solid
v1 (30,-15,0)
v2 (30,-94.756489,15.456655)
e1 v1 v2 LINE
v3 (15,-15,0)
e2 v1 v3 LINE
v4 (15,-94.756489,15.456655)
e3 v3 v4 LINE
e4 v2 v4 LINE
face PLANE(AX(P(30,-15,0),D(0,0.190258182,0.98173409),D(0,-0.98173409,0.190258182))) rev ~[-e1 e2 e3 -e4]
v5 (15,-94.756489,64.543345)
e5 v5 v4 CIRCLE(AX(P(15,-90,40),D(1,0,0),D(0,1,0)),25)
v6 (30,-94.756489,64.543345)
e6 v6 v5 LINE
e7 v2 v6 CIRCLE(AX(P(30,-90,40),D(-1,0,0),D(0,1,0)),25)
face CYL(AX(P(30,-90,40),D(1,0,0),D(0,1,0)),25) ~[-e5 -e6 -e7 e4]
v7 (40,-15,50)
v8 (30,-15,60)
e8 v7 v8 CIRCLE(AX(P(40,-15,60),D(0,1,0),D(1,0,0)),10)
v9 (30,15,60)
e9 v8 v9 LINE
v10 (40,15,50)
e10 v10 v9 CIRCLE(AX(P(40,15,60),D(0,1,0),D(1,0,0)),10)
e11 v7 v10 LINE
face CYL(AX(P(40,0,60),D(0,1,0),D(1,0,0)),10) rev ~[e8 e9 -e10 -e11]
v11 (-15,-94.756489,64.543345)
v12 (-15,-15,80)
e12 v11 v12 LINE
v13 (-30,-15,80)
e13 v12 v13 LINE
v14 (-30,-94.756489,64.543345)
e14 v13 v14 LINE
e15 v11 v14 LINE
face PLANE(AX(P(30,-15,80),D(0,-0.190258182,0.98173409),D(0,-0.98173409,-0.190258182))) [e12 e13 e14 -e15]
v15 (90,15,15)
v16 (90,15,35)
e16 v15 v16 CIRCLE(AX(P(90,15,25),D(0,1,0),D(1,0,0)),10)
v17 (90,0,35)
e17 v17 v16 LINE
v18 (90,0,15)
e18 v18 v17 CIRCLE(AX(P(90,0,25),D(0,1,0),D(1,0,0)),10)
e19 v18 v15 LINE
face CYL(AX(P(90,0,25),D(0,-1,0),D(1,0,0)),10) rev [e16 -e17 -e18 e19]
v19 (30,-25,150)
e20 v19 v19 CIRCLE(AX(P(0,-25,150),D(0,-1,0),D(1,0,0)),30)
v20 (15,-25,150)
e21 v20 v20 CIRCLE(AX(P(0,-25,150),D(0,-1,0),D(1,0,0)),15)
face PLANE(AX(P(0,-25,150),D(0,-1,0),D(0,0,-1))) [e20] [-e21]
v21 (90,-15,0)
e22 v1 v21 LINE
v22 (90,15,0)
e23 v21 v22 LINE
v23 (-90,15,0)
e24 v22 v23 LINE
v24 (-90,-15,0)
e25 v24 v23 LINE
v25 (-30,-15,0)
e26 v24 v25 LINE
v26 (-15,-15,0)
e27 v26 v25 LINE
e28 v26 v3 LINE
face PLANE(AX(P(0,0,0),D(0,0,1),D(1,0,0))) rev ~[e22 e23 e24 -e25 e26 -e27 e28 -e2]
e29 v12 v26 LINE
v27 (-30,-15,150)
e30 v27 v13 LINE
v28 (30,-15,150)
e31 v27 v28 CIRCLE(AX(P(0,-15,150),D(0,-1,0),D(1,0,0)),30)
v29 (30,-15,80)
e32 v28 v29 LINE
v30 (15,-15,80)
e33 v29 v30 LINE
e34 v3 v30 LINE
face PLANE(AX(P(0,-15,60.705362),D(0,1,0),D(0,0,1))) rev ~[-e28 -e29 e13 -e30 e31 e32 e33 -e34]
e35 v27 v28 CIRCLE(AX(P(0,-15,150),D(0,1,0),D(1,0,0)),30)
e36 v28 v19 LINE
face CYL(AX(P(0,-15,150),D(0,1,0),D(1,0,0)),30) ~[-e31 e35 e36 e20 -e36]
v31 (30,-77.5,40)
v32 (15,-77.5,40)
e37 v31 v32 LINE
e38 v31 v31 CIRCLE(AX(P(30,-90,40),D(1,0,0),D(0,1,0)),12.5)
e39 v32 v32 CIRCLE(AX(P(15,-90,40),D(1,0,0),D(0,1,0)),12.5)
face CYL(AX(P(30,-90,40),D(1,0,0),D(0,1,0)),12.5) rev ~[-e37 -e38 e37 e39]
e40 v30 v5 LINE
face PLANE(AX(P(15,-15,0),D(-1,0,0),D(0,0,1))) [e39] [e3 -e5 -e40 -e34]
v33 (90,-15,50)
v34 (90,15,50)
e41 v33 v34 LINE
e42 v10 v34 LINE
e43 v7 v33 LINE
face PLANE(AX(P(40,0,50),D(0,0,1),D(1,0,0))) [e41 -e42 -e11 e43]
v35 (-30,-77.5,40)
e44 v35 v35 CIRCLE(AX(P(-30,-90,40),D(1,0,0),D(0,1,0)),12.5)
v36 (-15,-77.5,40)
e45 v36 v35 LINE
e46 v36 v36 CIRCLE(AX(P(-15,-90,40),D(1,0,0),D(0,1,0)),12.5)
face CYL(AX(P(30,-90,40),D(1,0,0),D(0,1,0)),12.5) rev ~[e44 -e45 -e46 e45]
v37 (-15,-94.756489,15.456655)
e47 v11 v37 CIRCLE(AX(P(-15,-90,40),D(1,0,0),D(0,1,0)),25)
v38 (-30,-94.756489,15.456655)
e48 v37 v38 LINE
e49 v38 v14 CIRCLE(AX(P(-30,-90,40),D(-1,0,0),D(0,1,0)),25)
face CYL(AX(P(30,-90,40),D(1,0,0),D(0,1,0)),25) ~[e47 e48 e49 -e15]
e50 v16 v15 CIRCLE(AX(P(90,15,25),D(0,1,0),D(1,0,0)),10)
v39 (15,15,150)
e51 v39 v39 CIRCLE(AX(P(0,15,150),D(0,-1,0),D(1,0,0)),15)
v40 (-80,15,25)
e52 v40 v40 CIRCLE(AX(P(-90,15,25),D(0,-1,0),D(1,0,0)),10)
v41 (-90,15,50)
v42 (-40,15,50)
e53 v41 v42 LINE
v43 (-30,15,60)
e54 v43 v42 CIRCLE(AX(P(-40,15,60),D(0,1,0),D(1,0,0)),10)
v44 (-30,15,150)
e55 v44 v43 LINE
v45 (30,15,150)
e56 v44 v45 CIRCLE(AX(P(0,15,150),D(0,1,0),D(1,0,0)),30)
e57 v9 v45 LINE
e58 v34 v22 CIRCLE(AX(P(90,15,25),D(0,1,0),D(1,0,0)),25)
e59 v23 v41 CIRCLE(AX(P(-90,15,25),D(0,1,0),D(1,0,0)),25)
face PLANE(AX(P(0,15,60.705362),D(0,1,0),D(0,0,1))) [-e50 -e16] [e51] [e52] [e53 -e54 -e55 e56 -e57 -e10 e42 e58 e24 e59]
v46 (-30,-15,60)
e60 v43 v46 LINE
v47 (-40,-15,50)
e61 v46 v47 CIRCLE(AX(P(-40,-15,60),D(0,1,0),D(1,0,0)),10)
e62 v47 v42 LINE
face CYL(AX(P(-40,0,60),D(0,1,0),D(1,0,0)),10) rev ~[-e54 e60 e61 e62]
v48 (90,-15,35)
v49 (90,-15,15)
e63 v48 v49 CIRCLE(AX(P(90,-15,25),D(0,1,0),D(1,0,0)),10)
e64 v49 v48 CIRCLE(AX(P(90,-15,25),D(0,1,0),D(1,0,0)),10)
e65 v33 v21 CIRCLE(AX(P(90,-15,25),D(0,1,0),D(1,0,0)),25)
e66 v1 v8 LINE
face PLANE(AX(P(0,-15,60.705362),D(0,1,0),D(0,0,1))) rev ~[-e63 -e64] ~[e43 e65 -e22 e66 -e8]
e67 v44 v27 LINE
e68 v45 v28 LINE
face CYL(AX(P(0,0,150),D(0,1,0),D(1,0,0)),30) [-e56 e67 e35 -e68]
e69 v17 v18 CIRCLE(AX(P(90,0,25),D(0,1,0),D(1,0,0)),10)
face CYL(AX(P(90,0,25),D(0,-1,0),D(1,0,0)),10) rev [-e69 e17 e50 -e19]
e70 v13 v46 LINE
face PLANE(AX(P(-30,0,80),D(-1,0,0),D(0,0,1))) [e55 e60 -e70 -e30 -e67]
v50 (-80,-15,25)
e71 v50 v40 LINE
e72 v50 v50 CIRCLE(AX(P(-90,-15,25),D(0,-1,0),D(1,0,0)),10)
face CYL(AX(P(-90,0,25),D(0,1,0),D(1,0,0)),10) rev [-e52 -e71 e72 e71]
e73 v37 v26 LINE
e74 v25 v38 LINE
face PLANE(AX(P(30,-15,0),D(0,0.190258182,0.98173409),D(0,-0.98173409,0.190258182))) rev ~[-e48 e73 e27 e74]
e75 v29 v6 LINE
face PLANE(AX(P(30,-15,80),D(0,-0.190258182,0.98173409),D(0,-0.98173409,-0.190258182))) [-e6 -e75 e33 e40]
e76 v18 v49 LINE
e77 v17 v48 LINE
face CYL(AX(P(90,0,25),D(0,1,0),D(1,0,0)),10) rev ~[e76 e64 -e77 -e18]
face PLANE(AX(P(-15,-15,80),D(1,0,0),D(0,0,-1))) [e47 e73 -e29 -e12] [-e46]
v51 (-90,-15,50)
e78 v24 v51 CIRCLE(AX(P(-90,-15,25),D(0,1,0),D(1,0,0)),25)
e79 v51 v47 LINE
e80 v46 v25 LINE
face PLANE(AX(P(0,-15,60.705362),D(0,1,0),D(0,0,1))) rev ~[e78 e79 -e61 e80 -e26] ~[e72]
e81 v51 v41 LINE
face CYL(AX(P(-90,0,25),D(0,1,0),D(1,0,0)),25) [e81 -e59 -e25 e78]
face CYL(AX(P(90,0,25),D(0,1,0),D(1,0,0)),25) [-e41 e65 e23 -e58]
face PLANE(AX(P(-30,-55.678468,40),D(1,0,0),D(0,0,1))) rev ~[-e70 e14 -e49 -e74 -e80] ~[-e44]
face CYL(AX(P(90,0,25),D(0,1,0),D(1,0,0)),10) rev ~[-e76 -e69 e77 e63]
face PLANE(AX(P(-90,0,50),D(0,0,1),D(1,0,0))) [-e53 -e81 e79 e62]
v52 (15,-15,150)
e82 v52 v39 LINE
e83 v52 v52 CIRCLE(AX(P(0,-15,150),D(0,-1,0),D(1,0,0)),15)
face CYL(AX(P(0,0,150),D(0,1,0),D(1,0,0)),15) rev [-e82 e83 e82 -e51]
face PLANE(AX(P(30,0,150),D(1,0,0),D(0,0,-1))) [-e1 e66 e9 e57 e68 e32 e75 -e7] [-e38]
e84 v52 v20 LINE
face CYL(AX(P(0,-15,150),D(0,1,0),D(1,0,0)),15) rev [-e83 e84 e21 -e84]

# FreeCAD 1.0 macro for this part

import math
import FreeCAD as App
import Part
import Sketcher

doc = App.newDocument("Part")
body = doc.addObject("PartDesign::Body", "Body")

sketch1 = doc.addObject("Sketcher::SketchObject", "Sketch")
body.addObject(sketch1)
sketch1.AttachmentSupport = (doc.XZ_Plane, [""])
sketch1.MapMode = "FlatFace"
sketch1.addGeometry(Part.LineSegment(App.Vector(30, 60, 0), App.Vector(30, 150, 0)), False)
sketch1.addGeometry(Part.ArcOfCircle(Part.Circle(App.Vector(0, 150, 0), App.Vector(0, 0, 1), 30), math.radians(0), math.radians(180)), False)
sketch1.addGeometry(Part.LineSegment(App.Vector(-30, 150, 0), App.Vector(-30, 60, 0)), False)
sketch1.addGeometry(Part.ArcOfCircle(Part.Circle(App.Vector(-40, 60, 0), App.Vector(0, 0, 1), 10), math.radians(-90), math.radians(0)), False)
sketch1.addGeometry(Part.LineSegment(App.Vector(-40, 50, 0), App.Vector(-90, 50, 0)), False)
sketch1.addGeometry(Part.ArcOfCircle(Part.Circle(App.Vector(-90, 25, 0), App.Vector(0, 0, 1), 25), math.radians(90), math.radians(270)), False)
sketch1.addGeometry(Part.LineSegment(App.Vector(-90, 0, 0), App.Vector(90, 0, 0)), False)
sketch1.addGeometry(Part.ArcOfCircle(Part.Circle(App.Vector(90, 25, 0), App.Vector(0, 0, 1), 25), math.radians(-90), math.radians(90)), False)
sketch1.addGeometry(Part.LineSegment(App.Vector(90, 50, 0), App.Vector(40, 50, 0)), False)
sketch1.addGeometry(Part.ArcOfCircle(Part.Circle(App.Vector(40, 60, 0), App.Vector(0, 0, 1), 10), math.radians(180), math.radians(270)), False)
sketch1.addGeometry(Part.Circle(App.Vector(-90, 25, 0), App.Vector(0, 0, 1), 10), False)
sketch1.addGeometry(Part.Circle(App.Vector(90, 25, 0), App.Vector(0, 0, 1), 10), False)
sketch1.addGeometry(Part.Circle(App.Vector(0, 150, 0), App.Vector(0, 0, 1), 15), False)
sketch1.addConstraint(Sketcher.Constraint("Tangent", 0, 2, 1, 1))
sketch1.addConstraint(Sketcher.Constraint("Tangent", 1, 2, 2, 1))
sketch1.addConstraint(Sketcher.Constraint("Tangent", 2, 2, 3, 2))
sketch1.addConstraint(Sketcher.Constraint("Tangent", 3, 1, 4, 1))
sketch1.addConstraint(Sketcher.Constraint("Tangent", 4, 2, 5, 1))
sketch1.addConstraint(Sketcher.Constraint("Tangent", 5, 2, 6, 1))
sketch1.addConstraint(Sketcher.Constraint("Tangent", 6, 2, 7, 1))
sketch1.addConstraint(Sketcher.Constraint("Tangent", 7, 2, 8, 1))
sketch1.addConstraint(Sketcher.Constraint("Tangent", 8, 2, 9, 2))
sketch1.addConstraint(Sketcher.Constraint("Tangent", 9, 1, 0, 1))
sketch1.addConstraint(Sketcher.Constraint("Vertical", 0))
sketch1.addConstraint(Sketcher.Constraint("Vertical", 2))
sketch1.addConstraint(Sketcher.Constraint("Horizontal", 4))
sketch1.addConstraint(Sketcher.Constraint("Horizontal", 6))
sketch1.addConstraint(Sketcher.Constraint("Horizontal", 8))
sketch1.addConstraint(Sketcher.Constraint("Coincident", 10, 3, 5, 3))
sketch1.addConstraint(Sketcher.Constraint("Coincident", 11, 3, 7, 3))
sketch1.addConstraint(Sketcher.Constraint("Coincident", 12, 3, 1, 3))
sketch1.addConstraint(Sketcher.Constraint("Equal", 5, 7))
sketch1.addConstraint(Sketcher.Constraint("Equal", 3, 9))
sketch1.addConstraint(Sketcher.Constraint("Equal", 9, 10))
sketch1.addConstraint(Sketcher.Constraint("Equal", 10, 11))
sketch1.addConstraint(Sketcher.Constraint("Symmetric", 5, 2, 6, 2, -1, 1))
sketch1.addConstraint(Sketcher.Constraint("PointOnObject", 1, 3, -2))
sketch1.addConstraint(Sketcher.Constraint("Diameter", 10, 20.0))
sketch1.addConstraint(Sketcher.Constraint("Diameter", 12, 30.0))
sketch1.addConstraint(Sketcher.Constraint("Radius", 1, 30.0))
sketch1.addConstraint(Sketcher.Constraint("Radius", 5, 25.0))
sketch1.addConstraint(Sketcher.Constraint("DistanceX", 4, 2, 4, 1, 50.0))
sketch1.addConstraint(Sketcher.Constraint("DistanceY", 0, 1, 0, 2, 90.0))
pad1 = doc.addObject("PartDesign::Pad", "Pad")
body.addObject(pad1)
pad1.Profile = sketch1
pad1.Length = 30
pad1.Midplane = True

sketch2 = doc.addObject("Sketcher::SketchObject", "Sketch001")
body.addObject(sketch2)
sketch2.AttachmentSupport = (doc.XZ_Plane, [""])
sketch2.MapMode = "FlatFace"
sketch2.AttachmentOffset = App.Placement(App.Vector(0, 0, 15), App.Rotation())
sketch2.addGeometry(Part.Circle(App.Vector(0, 150, 0), App.Vector(0, 0, 1), 30), False)
sketch2.addGeometry(Part.Circle(App.Vector(0, 150, 0), App.Vector(0, 0, 1), 15), False)
sketch2.addConstraint(Sketcher.Constraint("Coincident", 1, 3, 0, 3))
sketch2.addConstraint(Sketcher.Constraint("PointOnObject", 0, 3, -2))
sketch2.addConstraint(Sketcher.Constraint("Diameter", 0, 60.0))
sketch2.addConstraint(Sketcher.Constraint("Diameter", 1, 30.0))
sketch2.addConstraint(Sketcher.Constraint("DistanceY", -1, 1, 0, 3, 150.0))
pad2 = doc.addObject("PartDesign::Pad", "Pad001")
body.addObject(pad2)
pad2.Profile = sketch2
pad2.Length = 10

sketch3 = doc.addObject("Sketcher::SketchObject", "Sketch002")
body.addObject(sketch3)
sketch3.AttachmentSupport = (doc.YZ_Plane, [""])
sketch3.MapMode = "FlatFace"
sketch3.AttachmentOffset = App.Placement(App.Vector(0, 0, 30), App.Rotation())
sketch3.addGeometry(Part.LineSegment(App.Vector(-15, 0, 0), App.Vector(-15, 80, 0)), False)
sketch3.addGeometry(Part.LineSegment(App.Vector(-15, 80, 0), App.Vector(-95, 65, 0)), False)
sketch3.addGeometry(Part.ArcOfCircle(Part.Circle(App.Vector(-90, 40, 0), App.Vector(0, 0, 1), 25), math.radians(101), math.radians(259)), False)
sketch3.addGeometry(Part.LineSegment(App.Vector(-95, 15, 0), App.Vector(-15, 0, 0)), False)
sketch3.addGeometry(Part.Circle(App.Vector(-90, 40, 0), App.Vector(0, 0, 1), 12), False)
sketch3.addConstraint(Sketcher.Constraint("Coincident", 0, 2, 1, 1))
sketch3.addConstraint(Sketcher.Constraint("Tangent", 1, 2, 2, 1))
sketch3.addConstraint(Sketcher.Constraint("Tangent", 2, 2, 3, 1))
sketch3.addConstraint(Sketcher.Constraint("Coincident", 3, 2, 0, 1))
sketch3.addConstraint(Sketcher.Constraint("Vertical", 0))
sketch3.addConstraint(Sketcher.Constraint("Coincident", 4, 3, 2, 3))
sketch3.addConstraint(Sketcher.Constraint("PointOnObject", 3, 2, -1))
sketch3.addConstraint(Sketcher.Constraint("Vertical", 1, 2, 2, 2))
sketch3.addConstraint(Sketcher.Constraint("Diameter", 4, 25.0))
sketch3.addConstraint(Sketcher.Constraint("Radius", 2, 25.0))
sketch3.addConstraint(Sketcher.Constraint("DistanceY", 0, 1, 0, 2, 80.0))
sketch3.addConstraint(Sketcher.Constraint("DistanceX", 2, 3, -1, 1, 90.0))
sketch3.addConstraint(Sketcher.Constraint("DistanceX", 0, 2, -1, 1, 15.0))
pad3 = doc.addObject("PartDesign::Pad", "Pad002")
body.addObject(pad3)
pad3.Profile = sketch3
pad3.Length = 60
pad3.Reversed = True

sketch4 = doc.addObject("Sketcher::SketchObject", "Sketch003")
body.addObject(sketch4)
sketch4.AttachmentSupport = (doc.XZ_Plane, [""])
sketch4.MapMode = "FlatFace"
sketch4.AttachmentOffset = App.Placement(App.Vector(0, 0, 15), App.Rotation())
sketch4.addGeometry(Part.LineSegment(App.Vector(15, 80, 0), App.Vector(-15, 80, 0)), False)
sketch4.addGeometry(Part.LineSegment(App.Vector(-15, 80, 0), App.Vector(-15, 0, 0)), False)
sketch4.addGeometry(Part.LineSegment(App.Vector(-15, 0, 0), App.Vector(15, 0, 0)), False)
sketch4.addGeometry(Part.LineSegment(App.Vector(15, 0, 0), App.Vector(15, 80, 0)), False)
sketch4.addConstraint(Sketcher.Constraint("Coincident", 0, 2, 1, 1))
sketch4.addConstraint(Sketcher.Constraint("Coincident", 1, 2, 2, 1))
sketch4.addConstraint(Sketcher.Constraint("Coincident", 2, 2, 3, 1))
sketch4.addConstraint(Sketcher.Constraint("Coincident", 3, 2, 0, 1))
sketch4.addConstraint(Sketcher.Constraint("Horizontal", 0))
sketch4.addConstraint(Sketcher.Constraint("Vertical", 1))
sketch4.addConstraint(Sketcher.Constraint("Horizontal", 2))
sketch4.addConstraint(Sketcher.Constraint("Vertical", 3))
sketch4.addConstraint(Sketcher.Constraint("Symmetric", 1, 2, 2, 2, -1, 1))
sketch4.addConstraint(Sketcher.Constraint("DistanceX", 0, 2, 0, 1, 30.0))
sketch4.addConstraint(Sketcher.Constraint("DistanceY", 1, 2, 1, 1, 80.0))
pocket1 = doc.addObject("PartDesign::Pocket", "Pocket")
body.addObject(pocket1)
pocket1.Profile = sketch4
pocket1.Length = 222.03
pocket1.Reversed = True

doc.recompute()
